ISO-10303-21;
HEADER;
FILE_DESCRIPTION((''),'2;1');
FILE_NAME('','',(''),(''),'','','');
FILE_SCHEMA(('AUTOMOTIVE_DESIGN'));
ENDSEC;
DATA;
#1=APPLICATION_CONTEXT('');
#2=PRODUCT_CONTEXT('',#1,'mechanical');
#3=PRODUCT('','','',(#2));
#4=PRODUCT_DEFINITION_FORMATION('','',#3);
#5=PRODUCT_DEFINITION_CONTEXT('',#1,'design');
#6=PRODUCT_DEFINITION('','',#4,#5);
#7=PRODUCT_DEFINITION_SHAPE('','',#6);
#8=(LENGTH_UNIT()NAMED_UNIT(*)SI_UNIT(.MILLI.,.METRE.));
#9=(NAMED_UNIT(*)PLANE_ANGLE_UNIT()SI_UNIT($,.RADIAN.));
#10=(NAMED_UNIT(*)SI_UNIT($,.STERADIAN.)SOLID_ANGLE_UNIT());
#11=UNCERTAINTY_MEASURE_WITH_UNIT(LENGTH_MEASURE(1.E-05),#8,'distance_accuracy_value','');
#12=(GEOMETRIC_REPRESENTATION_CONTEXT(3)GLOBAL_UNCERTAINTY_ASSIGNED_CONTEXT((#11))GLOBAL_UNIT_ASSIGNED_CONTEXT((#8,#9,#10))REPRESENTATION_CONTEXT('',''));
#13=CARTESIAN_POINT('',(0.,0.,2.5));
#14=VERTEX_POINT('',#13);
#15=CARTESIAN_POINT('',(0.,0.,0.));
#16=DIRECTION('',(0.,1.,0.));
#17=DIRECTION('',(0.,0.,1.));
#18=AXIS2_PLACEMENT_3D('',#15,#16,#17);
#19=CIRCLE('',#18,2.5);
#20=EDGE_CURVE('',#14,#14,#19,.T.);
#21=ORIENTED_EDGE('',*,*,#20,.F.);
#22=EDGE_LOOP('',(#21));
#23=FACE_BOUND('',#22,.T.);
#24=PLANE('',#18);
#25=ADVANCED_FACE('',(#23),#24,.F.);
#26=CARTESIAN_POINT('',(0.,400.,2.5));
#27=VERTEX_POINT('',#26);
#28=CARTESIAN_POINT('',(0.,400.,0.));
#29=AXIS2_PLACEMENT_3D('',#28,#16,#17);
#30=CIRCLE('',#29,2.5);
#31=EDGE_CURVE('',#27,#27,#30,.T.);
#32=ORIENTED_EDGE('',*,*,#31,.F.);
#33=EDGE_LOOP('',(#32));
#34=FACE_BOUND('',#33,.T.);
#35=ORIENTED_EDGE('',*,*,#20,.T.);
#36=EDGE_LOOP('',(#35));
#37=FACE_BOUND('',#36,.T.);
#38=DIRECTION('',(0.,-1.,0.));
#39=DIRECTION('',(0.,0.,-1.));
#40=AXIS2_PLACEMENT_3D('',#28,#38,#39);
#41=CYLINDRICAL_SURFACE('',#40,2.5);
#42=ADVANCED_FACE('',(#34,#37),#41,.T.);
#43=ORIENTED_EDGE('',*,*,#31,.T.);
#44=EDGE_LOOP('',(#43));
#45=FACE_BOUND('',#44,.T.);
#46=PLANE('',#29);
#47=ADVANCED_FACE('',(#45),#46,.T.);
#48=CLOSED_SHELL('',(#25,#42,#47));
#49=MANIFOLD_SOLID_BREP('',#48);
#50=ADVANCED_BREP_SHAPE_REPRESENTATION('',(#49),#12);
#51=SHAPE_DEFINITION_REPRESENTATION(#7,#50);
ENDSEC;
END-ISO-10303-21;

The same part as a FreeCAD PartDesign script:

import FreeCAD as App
import Part
import Sketcher

V = App.Vector

doc = App.newDocument("Part")
params = doc.addObject("Spreadsheet::Sheet", "Params")
for row, (alias, value) in enumerate([
    ("sketch1_diameter", "5 mm"),
    ("pad1_length", "400 mm"),
], start=1):
    params.set(f"A{row}", alias)
    params.set(f"B{row}", "=" + value)
    params.setAlias(f"B{row}", alias)

body = doc.addObject("PartDesign::Body", "Body")

sketch1 = doc.addObject("Sketcher::SketchObject", "Sketch")
body.addObject(sketch1)
sketch1.AttachmentSupport = (doc.XZ_Plane, [""])
sketch1.MapMode = "FlatFace"
sketch1.addGeometry(Part.Circle(V(0, 0, 0), V(0, 0, 1), 2.5), False)
sketch1.addConstraint([
    Sketcher.Constraint("Coincident", 0, 3, -1, 1),
    Sketcher.Constraint("Diameter", 0, 5.0),
])
sketch1.setExpression("Constraints[1]", "Params.sketch1_diameter")
pad1 = doc.addObject("PartDesign::Pad", "Pad")
body.addObject(pad1)
pad1.Profile = sketch1
pad1.setExpression("Length", "Params.pad1_length")
pad1.Reversed = True

doc.recompute()
